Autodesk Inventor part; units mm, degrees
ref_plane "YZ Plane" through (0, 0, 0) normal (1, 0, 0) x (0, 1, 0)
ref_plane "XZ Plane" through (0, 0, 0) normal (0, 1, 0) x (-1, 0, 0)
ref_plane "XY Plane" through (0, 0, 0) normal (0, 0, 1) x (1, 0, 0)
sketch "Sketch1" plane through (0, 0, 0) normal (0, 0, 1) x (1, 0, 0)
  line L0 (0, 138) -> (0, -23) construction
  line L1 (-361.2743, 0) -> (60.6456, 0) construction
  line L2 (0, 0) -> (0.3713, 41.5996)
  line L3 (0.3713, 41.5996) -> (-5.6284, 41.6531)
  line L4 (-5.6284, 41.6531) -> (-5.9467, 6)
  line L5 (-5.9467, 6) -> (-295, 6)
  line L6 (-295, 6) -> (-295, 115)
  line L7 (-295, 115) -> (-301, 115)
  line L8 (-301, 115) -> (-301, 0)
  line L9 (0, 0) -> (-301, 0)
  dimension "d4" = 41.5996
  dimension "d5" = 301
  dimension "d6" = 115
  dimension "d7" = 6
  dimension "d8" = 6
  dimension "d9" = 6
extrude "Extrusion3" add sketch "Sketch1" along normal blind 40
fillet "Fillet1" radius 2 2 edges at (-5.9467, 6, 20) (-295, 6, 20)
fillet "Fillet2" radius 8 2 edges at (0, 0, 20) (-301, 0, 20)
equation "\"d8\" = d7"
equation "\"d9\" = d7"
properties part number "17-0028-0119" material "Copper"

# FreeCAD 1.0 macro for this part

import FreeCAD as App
import Part
import Sketcher
from FreeCAD import Vector
Q = App.Units.Quantity


def edges_at(feature, points):
    """Names of the edges that pass closest to the given points."""
    edges = feature.Shape.Edges
    near = lambda p: min(range(len(edges)), key=lambda i: edges[i].distToShape(Part.Vertex(*p))[0])
    return sorted({f"Edge{near(p) + 1}" for p in points})

doc = App.newDocument("Part")
params = doc.addObject("Spreadsheet::Sheet", "Params")
for row, (alias, value) in enumerate([
    ("sketch1_width", "301 mm"),
    ("sketch1_width2", "6 mm"),
    ("sketch1_height", "115 mm"),
    ("sketch1_length", "6 mm"),
    ("pad1_length", "40 mm"),
    ("fillet_radius", "2 mm"),
    ("fillet2_radius", "8 mm"),
], start=1):
    params.set(f"A{row}", alias)
    params.set(f"B{row}", "=" + value)
    params.setAlias(f"B{row}", alias)

body = doc.addObject("PartDesign::Body", "Body")

# Sketch on XY plane
sketch1 = doc.addObject("Sketcher::SketchObject", "Sketch")
body.addObject(sketch1)
sketch1.AttachmentSupport = (doc.XY_Plane, [""])
sketch1.MapMode = "FlatFace"
sketch1.addGeometry([
    Part.LineSegment(Vector(-301, 0, 0), Vector(0, 0, 0)),  # 0
    Part.LineSegment(Vector(0, 0, 0), Vector(0.3713, 41.5996, 0)),  # 1
    Part.LineSegment(Vector(0.3713, 41.5996, 0), Vector(-5.6284, 41.6531, 0)),  # 2
    Part.LineSegment(Vector(-5.6284, 41.6531, 0), Vector(-5.9467, 6, 0)),  # 3
    Part.LineSegment(Vector(-5.9467, 6, 0), Vector(-295, 6, 0)),  # 4
    Part.LineSegment(Vector(-295, 6, 0), Vector(-295, 115, 0)),  # 5
    Part.LineSegment(Vector(-295, 115, 0), Vector(-301, 115, 0)),  # 6
    Part.LineSegment(Vector(-301, 115, 0), Vector(-301, 0, 0)),  # 7
], False)
sketch1.addConstraint([
    Sketcher.Constraint("Coincident", 0, 2, 1, 1),
    Sketcher.Constraint("Coincident", 1, 2, 2, 1),
    Sketcher.Constraint("Coincident", 2, 2, 3, 1),
    Sketcher.Constraint("Coincident", 3, 2, 4, 1),
    Sketcher.Constraint("Coincident", 4, 2, 5, 1),
    Sketcher.Constraint("Coincident", 5, 2, 6, 1),
    Sketcher.Constraint("Coincident", 6, 2, 7, 1),
    Sketcher.Constraint("Coincident", 7, 2, 0, 1),
    Sketcher.Constraint("Horizontal", 0),
    Sketcher.Constraint("Horizontal", 4),
    Sketcher.Constraint("Vertical", 5),
    Sketcher.Constraint("Horizontal", 6),
    Sketcher.Constraint("Vertical", 7),
    Sketcher.Constraint("Coincident", 0, 2, -1, 1),
    Sketcher.Constraint("Perpendicular", 1, 2),
    Sketcher.Constraint("Perpendicular", 2, 3),
    Sketcher.Constraint("DistanceX", 0, 1, 0, 2, Q("301 mm")),
    Sketcher.Constraint("DistanceX", 6, 2, 6, 1, Q("6 mm")),
    Sketcher.Constraint("DistanceY", 7, 2, 7, 1, Q("115 mm")),
    Sketcher.Constraint("Distance", 2, Q("6 mm")),
    Sketcher.Constraint("DistanceY", -1, 1, 3, 2, Q("6 mm")),
    Sketcher.Constraint("DistanceY", -1, 1, 1, 2, Q("41.5996 mm")),
    Sketcher.Constraint("Angle", 2, Q("179.489 deg")),
])
sketch1.setExpression("Constraints[16]", "Params.sketch1_width")
sketch1.setExpression("Constraints[17]", "Params.sketch1_width2")
sketch1.setExpression("Constraints[18]", "Params.sketch1_height")
sketch1.setExpression("Constraints[19]", "Params.sketch1_length")
pad1 = doc.addObject("PartDesign::Pad", "Pad")
body.addObject(pad1)
pad1.Profile = sketch1
pad1.setExpression("Length", "Params.pad1_length")
doc.recompute()

fillet = doc.addObject("PartDesign::Fillet", "Fillet")
body.addObject(fillet)
fillet.Base = (pad1, edges_at(pad1, [(-5.947, 6, 20), (-295, 6, 20)]))
fillet.setExpression("Radius", "Params.fillet_radius")
doc.recompute()

fillet2 = doc.addObject("PartDesign::Fillet", "Fillet001")
body.addObject(fillet2)
fillet2.Base = (fillet, edges_at(fillet, [(0, 0, 20), (-301, 0, 20)]))
fillet2.setExpression("Radius", "Params.fillet2_radius")

doc.recompute()
